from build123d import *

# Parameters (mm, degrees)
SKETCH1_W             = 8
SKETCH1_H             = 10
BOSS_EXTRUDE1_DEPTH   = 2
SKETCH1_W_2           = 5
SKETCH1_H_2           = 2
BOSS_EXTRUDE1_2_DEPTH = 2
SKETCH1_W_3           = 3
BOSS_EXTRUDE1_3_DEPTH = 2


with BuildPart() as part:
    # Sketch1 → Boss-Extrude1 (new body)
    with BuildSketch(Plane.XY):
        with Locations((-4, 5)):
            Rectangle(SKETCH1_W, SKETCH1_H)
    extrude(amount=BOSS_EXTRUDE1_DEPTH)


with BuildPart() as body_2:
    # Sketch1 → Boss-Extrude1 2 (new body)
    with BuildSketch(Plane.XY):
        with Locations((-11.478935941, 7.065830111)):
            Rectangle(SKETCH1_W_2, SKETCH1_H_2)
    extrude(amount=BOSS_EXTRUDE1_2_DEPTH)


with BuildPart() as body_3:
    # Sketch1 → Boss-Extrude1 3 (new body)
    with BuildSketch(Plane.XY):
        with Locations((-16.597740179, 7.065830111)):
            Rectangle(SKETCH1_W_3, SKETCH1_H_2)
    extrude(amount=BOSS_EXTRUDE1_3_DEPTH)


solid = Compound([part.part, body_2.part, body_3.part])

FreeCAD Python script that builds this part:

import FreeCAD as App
import Part
import Sketcher
from FreeCAD import Vector
Q = App.Units.Quantity


def add_polygon(sketch, points):
    """Adds a closed chain of lines whose ends are joined by coincident constraints."""
    first, n = sketch.GeometryCount, len(points)
    for a, b in zip(points, points[1:] + points[:1]):
        sketch.addGeometry(Part.LineSegment(App.Vector(*a, 0), App.Vector(*b, 0)), False)
    for i in range(n):
        sketch.addConstraint(Sketcher.Constraint("Coincident", first + i, 2, first + (i + 1) % n, 1))

doc = App.newDocument("Part")
body = doc.addObject("PartDesign::Body", "Body")

sketch1 = body.newObject("Sketcher::SketchObject", "Sketch")
sketch1.AttachmentSupport = (doc.getObject("XY_Plane"), [""])
sketch1.MapMode = "FlatFace"
add_polygon(sketch1, [(-8, 10), (-8, 0), (0, 0), (0, 10)])
sketch1.addConstraint([
    Sketcher.Constraint("Vertical", 0),
    Sketcher.Constraint("Horizontal", 1),
    Sketcher.Constraint("Vertical", 2),
    Sketcher.Constraint("Horizontal", 3),
    Sketcher.Constraint("Coincident", 1, 2, -1, 1),
    Sketcher.Constraint("DistanceX", 1, 1, 1, 2, Q("8 mm")),
    Sketcher.Constraint("DistanceY", 0, 2, 0, 1, Q("10 mm")),
])
pad1 = body.newObject("PartDesign::Pad", "Pad")
pad1.Profile = sketch1
pad1.Length = 2
body2 = doc.addObject("PartDesign::Body", "Body001")

sketch2 = body2.newObject("Sketcher::SketchObject", "Sketch001")
sketch2.AttachmentSupport = (doc.getObject("XY_Plane001"), [""])
sketch2.MapMode = "FlatFace"
add_polygon(sketch2, [(-14, 8.1), (-14, 6.1), (-9, 6.1), (-9, 8.1)])
sketch2.addConstraint([
    Sketcher.Constraint("Vertical", 0),
    Sketcher.Constraint("Horizontal", 1),
    Sketcher.Constraint("Vertical", 2),
    Sketcher.Constraint("Horizontal", 3),
    Sketcher.Constraint("DistanceX", 1, 1, 1, 2, Q("5 mm")),
    Sketcher.Constraint("DistanceY", 0, 2, 0, 1, Q("2 mm")),
    Sketcher.Constraint("DistanceY", -1, 1, 0, 2, Q("6.06583 mm")),
    Sketcher.Constraint("DistanceX", 0, 2, -1, 1, Q("13.978936 mm")),
])
pad2 = body2.newObject("PartDesign::Pad", "Pad001")
pad2.Profile = sketch2
pad2.Length = 2
body3 = doc.addObject("PartDesign::Body", "Body002")

sketch3 = body3.newObject("Sketcher::SketchObject", "Sketch002")
sketch3.AttachmentSupport = (doc.getObject("XY_Plane002"), [""])
sketch3.MapMode = "FlatFace"
add_polygon(sketch3, [(-18.1, 8.1), (-18.1, 6.1), (-15.1, 6.1), (-15.1, 8.1)])
sketch3.addConstraint([
    Sketcher.Constraint("Vertical", 0),
    Sketcher.Constraint("Horizontal", 1),
    Sketcher.Constraint("Vertical", 2),
    Sketcher.Constraint("Horizontal", 3),
    Sketcher.Constraint("DistanceX", 1, 1, 1, 2, Q("3 mm")),
    Sketcher.Constraint("DistanceY", 0, 2, 0, 1, Q("2 mm")),
    Sketcher.Constraint("DistanceX", 0, 2, -1, 1, Q("18.09774 mm")),
    Sketcher.Constraint("DistanceY", -1, 1, 0, 2, Q("6.06583 mm")),
])
pad3 = body3.newObject("PartDesign::Pad", "Pad002")
pad3.Profile = sketch3
pad3.Length = 2

doc.recompute()
